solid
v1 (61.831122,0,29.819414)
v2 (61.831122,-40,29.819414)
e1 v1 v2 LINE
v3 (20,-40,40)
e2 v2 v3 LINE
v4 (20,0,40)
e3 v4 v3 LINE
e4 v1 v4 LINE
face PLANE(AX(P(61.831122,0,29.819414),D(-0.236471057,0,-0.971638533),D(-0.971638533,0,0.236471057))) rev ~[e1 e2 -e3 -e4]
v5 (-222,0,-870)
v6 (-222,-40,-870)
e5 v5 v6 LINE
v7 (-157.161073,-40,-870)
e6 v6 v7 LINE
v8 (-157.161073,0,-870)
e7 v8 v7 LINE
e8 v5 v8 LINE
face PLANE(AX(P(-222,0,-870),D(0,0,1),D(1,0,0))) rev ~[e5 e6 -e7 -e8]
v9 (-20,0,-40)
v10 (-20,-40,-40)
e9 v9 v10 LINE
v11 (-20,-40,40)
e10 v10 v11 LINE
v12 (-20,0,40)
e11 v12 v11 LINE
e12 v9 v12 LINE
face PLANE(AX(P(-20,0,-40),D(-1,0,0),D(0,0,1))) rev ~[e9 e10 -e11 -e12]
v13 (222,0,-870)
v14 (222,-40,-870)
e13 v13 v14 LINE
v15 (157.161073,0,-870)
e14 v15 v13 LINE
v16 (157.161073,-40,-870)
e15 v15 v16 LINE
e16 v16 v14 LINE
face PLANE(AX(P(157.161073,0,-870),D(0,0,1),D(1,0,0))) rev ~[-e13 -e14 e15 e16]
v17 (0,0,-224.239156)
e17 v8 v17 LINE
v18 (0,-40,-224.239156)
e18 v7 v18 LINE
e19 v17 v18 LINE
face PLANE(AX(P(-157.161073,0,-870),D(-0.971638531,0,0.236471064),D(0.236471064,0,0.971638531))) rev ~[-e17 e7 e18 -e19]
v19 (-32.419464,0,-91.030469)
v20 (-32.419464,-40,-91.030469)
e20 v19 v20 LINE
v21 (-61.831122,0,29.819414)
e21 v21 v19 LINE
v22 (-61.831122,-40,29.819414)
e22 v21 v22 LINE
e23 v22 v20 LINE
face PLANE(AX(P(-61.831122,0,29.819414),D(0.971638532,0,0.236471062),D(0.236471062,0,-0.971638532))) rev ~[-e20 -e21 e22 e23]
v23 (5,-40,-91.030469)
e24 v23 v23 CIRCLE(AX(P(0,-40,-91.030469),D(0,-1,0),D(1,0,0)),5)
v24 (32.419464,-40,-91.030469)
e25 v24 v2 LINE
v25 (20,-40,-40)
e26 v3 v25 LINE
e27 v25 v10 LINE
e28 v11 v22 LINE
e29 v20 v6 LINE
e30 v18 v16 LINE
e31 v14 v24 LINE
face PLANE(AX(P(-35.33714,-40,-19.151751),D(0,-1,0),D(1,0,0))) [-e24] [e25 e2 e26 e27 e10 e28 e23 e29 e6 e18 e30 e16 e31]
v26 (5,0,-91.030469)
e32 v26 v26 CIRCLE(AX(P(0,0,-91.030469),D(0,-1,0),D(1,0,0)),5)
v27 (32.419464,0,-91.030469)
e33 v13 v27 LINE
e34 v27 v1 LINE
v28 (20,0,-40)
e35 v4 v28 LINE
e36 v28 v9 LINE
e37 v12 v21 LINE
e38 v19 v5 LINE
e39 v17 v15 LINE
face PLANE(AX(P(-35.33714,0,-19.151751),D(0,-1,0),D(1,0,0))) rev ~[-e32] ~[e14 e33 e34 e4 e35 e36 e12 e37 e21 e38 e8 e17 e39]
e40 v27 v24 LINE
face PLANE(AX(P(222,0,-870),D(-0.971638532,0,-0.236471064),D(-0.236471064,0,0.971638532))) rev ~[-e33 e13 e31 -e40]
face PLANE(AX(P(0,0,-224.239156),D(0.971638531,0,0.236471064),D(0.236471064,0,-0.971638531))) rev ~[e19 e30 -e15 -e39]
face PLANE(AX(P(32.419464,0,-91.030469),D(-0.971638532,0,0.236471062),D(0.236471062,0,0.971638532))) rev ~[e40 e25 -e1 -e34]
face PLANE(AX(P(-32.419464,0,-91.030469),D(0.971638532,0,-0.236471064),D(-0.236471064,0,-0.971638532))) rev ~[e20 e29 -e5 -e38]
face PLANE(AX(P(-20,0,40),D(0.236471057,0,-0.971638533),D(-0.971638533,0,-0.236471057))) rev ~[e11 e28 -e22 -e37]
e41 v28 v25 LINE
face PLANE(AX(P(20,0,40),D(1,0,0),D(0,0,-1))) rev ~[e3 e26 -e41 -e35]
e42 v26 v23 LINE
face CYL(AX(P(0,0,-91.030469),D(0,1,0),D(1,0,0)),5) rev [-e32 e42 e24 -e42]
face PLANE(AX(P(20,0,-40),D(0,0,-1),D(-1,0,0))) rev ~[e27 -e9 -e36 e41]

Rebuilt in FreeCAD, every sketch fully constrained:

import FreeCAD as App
import Part
import Sketcher
from FreeCAD import Vector


def add_polygon(sketch, points):
    """Adds a closed chain of lines whose ends are joined by coincident constraints."""
    first, n = sketch.GeometryCount, len(points)
    for a, b in zip(points, points[1:] + points[:1]):
        sketch.addGeometry(Part.LineSegment(App.Vector(*a, 0), App.Vector(*b, 0)), False)
    for i in range(n):
        sketch.addConstraint(Sketcher.Constraint("Coincident", first + i, 2, first + (i + 1) % n, 1))

doc = App.newDocument("Part")
body = doc.addObject("PartDesign::Body", "Body")

# Sketch on XZ plane
sketch1 = body.newObject("Sketcher::SketchObject", "Sketch")
sketch1.AttachmentSupport = (doc.getObject("XZ_Plane"), [""])
sketch1.MapMode = "FlatFace"
add_polygon(sketch1, [(-20, 40), (-62, 30), (-32, -91), (-222, -870), (-157, -870), (0, -224), (157, -870), (222, -870), (32, -91), (62, 30), (20, 40), (20, -40), (-20, -40)])  # lines 0-12
sketch1.addGeometry(Part.Circle(Vector(0, -91, 0), Vector(0, 0, 1), 5), False)  # 13
sketch1.addConstraint([
    Sketcher.Constraint("Horizontal", 3),
    Sketcher.Constraint("Horizontal", 6),
    Sketcher.Constraint("Vertical", 10),
    Sketcher.Constraint("Horizontal", 11),
    Sketcher.Constraint("Vertical", 12),
    Sketcher.Constraint("Symmetric", 9, 2, 11, 2, -1, 1),
    Sketcher.Constraint("Symmetric", 3, 2, 5, 2, -2),
    Sketcher.Constraint("Symmetric", 1, 2, 7, 2, -2),
    Sketcher.Constraint("Symmetric", 0, 2, 8, 2, -2),
    Sketcher.Constraint("PointOnObject", 13, 3, -2),
    Sketcher.Constraint("PointOnObject", 4, 2, -2),
    Sketcher.Constraint("Perpendicular", 0, 1),
    Sketcher.Constraint("Parallel", 2, 4),
    Sketcher.Constraint("Parallel", 1, 5),
    Sketcher.Constraint("Parallel", 5, 7),
    Sketcher.Constraint("Perpendicular", 8, 9),
    Sketcher.Constraint("Horizontal", 13, 3, 1, 2),
    Sketcher.Constraint("Diameter", 13, 10.0),
    Sketcher.Constraint("DistanceX", 11, 2, 11, 1, 40.0),
    Sketcher.Constraint("DistanceY", 10, 2, 10, 1, 80.0),
    Sketcher.Constraint("DistanceX", 2, 2, -1, 1, 222.0),
    Sketcher.Constraint("DistanceY", 2, 2, -1, 1, 870.0),
    Sketcher.Constraint("Distance", 1, 124.377409),
    Sketcher.Constraint("DistanceX", 3, 1, 3, 2, 64.838927),
    Sketcher.Constraint("DistanceY", 13, 3, -1, 1, 91.030469),
])
pad1 = body.newObject("PartDesign::Pad", "Pad")
pad1.Profile = sketch1
pad1.Length = 40

doc.recompute()
